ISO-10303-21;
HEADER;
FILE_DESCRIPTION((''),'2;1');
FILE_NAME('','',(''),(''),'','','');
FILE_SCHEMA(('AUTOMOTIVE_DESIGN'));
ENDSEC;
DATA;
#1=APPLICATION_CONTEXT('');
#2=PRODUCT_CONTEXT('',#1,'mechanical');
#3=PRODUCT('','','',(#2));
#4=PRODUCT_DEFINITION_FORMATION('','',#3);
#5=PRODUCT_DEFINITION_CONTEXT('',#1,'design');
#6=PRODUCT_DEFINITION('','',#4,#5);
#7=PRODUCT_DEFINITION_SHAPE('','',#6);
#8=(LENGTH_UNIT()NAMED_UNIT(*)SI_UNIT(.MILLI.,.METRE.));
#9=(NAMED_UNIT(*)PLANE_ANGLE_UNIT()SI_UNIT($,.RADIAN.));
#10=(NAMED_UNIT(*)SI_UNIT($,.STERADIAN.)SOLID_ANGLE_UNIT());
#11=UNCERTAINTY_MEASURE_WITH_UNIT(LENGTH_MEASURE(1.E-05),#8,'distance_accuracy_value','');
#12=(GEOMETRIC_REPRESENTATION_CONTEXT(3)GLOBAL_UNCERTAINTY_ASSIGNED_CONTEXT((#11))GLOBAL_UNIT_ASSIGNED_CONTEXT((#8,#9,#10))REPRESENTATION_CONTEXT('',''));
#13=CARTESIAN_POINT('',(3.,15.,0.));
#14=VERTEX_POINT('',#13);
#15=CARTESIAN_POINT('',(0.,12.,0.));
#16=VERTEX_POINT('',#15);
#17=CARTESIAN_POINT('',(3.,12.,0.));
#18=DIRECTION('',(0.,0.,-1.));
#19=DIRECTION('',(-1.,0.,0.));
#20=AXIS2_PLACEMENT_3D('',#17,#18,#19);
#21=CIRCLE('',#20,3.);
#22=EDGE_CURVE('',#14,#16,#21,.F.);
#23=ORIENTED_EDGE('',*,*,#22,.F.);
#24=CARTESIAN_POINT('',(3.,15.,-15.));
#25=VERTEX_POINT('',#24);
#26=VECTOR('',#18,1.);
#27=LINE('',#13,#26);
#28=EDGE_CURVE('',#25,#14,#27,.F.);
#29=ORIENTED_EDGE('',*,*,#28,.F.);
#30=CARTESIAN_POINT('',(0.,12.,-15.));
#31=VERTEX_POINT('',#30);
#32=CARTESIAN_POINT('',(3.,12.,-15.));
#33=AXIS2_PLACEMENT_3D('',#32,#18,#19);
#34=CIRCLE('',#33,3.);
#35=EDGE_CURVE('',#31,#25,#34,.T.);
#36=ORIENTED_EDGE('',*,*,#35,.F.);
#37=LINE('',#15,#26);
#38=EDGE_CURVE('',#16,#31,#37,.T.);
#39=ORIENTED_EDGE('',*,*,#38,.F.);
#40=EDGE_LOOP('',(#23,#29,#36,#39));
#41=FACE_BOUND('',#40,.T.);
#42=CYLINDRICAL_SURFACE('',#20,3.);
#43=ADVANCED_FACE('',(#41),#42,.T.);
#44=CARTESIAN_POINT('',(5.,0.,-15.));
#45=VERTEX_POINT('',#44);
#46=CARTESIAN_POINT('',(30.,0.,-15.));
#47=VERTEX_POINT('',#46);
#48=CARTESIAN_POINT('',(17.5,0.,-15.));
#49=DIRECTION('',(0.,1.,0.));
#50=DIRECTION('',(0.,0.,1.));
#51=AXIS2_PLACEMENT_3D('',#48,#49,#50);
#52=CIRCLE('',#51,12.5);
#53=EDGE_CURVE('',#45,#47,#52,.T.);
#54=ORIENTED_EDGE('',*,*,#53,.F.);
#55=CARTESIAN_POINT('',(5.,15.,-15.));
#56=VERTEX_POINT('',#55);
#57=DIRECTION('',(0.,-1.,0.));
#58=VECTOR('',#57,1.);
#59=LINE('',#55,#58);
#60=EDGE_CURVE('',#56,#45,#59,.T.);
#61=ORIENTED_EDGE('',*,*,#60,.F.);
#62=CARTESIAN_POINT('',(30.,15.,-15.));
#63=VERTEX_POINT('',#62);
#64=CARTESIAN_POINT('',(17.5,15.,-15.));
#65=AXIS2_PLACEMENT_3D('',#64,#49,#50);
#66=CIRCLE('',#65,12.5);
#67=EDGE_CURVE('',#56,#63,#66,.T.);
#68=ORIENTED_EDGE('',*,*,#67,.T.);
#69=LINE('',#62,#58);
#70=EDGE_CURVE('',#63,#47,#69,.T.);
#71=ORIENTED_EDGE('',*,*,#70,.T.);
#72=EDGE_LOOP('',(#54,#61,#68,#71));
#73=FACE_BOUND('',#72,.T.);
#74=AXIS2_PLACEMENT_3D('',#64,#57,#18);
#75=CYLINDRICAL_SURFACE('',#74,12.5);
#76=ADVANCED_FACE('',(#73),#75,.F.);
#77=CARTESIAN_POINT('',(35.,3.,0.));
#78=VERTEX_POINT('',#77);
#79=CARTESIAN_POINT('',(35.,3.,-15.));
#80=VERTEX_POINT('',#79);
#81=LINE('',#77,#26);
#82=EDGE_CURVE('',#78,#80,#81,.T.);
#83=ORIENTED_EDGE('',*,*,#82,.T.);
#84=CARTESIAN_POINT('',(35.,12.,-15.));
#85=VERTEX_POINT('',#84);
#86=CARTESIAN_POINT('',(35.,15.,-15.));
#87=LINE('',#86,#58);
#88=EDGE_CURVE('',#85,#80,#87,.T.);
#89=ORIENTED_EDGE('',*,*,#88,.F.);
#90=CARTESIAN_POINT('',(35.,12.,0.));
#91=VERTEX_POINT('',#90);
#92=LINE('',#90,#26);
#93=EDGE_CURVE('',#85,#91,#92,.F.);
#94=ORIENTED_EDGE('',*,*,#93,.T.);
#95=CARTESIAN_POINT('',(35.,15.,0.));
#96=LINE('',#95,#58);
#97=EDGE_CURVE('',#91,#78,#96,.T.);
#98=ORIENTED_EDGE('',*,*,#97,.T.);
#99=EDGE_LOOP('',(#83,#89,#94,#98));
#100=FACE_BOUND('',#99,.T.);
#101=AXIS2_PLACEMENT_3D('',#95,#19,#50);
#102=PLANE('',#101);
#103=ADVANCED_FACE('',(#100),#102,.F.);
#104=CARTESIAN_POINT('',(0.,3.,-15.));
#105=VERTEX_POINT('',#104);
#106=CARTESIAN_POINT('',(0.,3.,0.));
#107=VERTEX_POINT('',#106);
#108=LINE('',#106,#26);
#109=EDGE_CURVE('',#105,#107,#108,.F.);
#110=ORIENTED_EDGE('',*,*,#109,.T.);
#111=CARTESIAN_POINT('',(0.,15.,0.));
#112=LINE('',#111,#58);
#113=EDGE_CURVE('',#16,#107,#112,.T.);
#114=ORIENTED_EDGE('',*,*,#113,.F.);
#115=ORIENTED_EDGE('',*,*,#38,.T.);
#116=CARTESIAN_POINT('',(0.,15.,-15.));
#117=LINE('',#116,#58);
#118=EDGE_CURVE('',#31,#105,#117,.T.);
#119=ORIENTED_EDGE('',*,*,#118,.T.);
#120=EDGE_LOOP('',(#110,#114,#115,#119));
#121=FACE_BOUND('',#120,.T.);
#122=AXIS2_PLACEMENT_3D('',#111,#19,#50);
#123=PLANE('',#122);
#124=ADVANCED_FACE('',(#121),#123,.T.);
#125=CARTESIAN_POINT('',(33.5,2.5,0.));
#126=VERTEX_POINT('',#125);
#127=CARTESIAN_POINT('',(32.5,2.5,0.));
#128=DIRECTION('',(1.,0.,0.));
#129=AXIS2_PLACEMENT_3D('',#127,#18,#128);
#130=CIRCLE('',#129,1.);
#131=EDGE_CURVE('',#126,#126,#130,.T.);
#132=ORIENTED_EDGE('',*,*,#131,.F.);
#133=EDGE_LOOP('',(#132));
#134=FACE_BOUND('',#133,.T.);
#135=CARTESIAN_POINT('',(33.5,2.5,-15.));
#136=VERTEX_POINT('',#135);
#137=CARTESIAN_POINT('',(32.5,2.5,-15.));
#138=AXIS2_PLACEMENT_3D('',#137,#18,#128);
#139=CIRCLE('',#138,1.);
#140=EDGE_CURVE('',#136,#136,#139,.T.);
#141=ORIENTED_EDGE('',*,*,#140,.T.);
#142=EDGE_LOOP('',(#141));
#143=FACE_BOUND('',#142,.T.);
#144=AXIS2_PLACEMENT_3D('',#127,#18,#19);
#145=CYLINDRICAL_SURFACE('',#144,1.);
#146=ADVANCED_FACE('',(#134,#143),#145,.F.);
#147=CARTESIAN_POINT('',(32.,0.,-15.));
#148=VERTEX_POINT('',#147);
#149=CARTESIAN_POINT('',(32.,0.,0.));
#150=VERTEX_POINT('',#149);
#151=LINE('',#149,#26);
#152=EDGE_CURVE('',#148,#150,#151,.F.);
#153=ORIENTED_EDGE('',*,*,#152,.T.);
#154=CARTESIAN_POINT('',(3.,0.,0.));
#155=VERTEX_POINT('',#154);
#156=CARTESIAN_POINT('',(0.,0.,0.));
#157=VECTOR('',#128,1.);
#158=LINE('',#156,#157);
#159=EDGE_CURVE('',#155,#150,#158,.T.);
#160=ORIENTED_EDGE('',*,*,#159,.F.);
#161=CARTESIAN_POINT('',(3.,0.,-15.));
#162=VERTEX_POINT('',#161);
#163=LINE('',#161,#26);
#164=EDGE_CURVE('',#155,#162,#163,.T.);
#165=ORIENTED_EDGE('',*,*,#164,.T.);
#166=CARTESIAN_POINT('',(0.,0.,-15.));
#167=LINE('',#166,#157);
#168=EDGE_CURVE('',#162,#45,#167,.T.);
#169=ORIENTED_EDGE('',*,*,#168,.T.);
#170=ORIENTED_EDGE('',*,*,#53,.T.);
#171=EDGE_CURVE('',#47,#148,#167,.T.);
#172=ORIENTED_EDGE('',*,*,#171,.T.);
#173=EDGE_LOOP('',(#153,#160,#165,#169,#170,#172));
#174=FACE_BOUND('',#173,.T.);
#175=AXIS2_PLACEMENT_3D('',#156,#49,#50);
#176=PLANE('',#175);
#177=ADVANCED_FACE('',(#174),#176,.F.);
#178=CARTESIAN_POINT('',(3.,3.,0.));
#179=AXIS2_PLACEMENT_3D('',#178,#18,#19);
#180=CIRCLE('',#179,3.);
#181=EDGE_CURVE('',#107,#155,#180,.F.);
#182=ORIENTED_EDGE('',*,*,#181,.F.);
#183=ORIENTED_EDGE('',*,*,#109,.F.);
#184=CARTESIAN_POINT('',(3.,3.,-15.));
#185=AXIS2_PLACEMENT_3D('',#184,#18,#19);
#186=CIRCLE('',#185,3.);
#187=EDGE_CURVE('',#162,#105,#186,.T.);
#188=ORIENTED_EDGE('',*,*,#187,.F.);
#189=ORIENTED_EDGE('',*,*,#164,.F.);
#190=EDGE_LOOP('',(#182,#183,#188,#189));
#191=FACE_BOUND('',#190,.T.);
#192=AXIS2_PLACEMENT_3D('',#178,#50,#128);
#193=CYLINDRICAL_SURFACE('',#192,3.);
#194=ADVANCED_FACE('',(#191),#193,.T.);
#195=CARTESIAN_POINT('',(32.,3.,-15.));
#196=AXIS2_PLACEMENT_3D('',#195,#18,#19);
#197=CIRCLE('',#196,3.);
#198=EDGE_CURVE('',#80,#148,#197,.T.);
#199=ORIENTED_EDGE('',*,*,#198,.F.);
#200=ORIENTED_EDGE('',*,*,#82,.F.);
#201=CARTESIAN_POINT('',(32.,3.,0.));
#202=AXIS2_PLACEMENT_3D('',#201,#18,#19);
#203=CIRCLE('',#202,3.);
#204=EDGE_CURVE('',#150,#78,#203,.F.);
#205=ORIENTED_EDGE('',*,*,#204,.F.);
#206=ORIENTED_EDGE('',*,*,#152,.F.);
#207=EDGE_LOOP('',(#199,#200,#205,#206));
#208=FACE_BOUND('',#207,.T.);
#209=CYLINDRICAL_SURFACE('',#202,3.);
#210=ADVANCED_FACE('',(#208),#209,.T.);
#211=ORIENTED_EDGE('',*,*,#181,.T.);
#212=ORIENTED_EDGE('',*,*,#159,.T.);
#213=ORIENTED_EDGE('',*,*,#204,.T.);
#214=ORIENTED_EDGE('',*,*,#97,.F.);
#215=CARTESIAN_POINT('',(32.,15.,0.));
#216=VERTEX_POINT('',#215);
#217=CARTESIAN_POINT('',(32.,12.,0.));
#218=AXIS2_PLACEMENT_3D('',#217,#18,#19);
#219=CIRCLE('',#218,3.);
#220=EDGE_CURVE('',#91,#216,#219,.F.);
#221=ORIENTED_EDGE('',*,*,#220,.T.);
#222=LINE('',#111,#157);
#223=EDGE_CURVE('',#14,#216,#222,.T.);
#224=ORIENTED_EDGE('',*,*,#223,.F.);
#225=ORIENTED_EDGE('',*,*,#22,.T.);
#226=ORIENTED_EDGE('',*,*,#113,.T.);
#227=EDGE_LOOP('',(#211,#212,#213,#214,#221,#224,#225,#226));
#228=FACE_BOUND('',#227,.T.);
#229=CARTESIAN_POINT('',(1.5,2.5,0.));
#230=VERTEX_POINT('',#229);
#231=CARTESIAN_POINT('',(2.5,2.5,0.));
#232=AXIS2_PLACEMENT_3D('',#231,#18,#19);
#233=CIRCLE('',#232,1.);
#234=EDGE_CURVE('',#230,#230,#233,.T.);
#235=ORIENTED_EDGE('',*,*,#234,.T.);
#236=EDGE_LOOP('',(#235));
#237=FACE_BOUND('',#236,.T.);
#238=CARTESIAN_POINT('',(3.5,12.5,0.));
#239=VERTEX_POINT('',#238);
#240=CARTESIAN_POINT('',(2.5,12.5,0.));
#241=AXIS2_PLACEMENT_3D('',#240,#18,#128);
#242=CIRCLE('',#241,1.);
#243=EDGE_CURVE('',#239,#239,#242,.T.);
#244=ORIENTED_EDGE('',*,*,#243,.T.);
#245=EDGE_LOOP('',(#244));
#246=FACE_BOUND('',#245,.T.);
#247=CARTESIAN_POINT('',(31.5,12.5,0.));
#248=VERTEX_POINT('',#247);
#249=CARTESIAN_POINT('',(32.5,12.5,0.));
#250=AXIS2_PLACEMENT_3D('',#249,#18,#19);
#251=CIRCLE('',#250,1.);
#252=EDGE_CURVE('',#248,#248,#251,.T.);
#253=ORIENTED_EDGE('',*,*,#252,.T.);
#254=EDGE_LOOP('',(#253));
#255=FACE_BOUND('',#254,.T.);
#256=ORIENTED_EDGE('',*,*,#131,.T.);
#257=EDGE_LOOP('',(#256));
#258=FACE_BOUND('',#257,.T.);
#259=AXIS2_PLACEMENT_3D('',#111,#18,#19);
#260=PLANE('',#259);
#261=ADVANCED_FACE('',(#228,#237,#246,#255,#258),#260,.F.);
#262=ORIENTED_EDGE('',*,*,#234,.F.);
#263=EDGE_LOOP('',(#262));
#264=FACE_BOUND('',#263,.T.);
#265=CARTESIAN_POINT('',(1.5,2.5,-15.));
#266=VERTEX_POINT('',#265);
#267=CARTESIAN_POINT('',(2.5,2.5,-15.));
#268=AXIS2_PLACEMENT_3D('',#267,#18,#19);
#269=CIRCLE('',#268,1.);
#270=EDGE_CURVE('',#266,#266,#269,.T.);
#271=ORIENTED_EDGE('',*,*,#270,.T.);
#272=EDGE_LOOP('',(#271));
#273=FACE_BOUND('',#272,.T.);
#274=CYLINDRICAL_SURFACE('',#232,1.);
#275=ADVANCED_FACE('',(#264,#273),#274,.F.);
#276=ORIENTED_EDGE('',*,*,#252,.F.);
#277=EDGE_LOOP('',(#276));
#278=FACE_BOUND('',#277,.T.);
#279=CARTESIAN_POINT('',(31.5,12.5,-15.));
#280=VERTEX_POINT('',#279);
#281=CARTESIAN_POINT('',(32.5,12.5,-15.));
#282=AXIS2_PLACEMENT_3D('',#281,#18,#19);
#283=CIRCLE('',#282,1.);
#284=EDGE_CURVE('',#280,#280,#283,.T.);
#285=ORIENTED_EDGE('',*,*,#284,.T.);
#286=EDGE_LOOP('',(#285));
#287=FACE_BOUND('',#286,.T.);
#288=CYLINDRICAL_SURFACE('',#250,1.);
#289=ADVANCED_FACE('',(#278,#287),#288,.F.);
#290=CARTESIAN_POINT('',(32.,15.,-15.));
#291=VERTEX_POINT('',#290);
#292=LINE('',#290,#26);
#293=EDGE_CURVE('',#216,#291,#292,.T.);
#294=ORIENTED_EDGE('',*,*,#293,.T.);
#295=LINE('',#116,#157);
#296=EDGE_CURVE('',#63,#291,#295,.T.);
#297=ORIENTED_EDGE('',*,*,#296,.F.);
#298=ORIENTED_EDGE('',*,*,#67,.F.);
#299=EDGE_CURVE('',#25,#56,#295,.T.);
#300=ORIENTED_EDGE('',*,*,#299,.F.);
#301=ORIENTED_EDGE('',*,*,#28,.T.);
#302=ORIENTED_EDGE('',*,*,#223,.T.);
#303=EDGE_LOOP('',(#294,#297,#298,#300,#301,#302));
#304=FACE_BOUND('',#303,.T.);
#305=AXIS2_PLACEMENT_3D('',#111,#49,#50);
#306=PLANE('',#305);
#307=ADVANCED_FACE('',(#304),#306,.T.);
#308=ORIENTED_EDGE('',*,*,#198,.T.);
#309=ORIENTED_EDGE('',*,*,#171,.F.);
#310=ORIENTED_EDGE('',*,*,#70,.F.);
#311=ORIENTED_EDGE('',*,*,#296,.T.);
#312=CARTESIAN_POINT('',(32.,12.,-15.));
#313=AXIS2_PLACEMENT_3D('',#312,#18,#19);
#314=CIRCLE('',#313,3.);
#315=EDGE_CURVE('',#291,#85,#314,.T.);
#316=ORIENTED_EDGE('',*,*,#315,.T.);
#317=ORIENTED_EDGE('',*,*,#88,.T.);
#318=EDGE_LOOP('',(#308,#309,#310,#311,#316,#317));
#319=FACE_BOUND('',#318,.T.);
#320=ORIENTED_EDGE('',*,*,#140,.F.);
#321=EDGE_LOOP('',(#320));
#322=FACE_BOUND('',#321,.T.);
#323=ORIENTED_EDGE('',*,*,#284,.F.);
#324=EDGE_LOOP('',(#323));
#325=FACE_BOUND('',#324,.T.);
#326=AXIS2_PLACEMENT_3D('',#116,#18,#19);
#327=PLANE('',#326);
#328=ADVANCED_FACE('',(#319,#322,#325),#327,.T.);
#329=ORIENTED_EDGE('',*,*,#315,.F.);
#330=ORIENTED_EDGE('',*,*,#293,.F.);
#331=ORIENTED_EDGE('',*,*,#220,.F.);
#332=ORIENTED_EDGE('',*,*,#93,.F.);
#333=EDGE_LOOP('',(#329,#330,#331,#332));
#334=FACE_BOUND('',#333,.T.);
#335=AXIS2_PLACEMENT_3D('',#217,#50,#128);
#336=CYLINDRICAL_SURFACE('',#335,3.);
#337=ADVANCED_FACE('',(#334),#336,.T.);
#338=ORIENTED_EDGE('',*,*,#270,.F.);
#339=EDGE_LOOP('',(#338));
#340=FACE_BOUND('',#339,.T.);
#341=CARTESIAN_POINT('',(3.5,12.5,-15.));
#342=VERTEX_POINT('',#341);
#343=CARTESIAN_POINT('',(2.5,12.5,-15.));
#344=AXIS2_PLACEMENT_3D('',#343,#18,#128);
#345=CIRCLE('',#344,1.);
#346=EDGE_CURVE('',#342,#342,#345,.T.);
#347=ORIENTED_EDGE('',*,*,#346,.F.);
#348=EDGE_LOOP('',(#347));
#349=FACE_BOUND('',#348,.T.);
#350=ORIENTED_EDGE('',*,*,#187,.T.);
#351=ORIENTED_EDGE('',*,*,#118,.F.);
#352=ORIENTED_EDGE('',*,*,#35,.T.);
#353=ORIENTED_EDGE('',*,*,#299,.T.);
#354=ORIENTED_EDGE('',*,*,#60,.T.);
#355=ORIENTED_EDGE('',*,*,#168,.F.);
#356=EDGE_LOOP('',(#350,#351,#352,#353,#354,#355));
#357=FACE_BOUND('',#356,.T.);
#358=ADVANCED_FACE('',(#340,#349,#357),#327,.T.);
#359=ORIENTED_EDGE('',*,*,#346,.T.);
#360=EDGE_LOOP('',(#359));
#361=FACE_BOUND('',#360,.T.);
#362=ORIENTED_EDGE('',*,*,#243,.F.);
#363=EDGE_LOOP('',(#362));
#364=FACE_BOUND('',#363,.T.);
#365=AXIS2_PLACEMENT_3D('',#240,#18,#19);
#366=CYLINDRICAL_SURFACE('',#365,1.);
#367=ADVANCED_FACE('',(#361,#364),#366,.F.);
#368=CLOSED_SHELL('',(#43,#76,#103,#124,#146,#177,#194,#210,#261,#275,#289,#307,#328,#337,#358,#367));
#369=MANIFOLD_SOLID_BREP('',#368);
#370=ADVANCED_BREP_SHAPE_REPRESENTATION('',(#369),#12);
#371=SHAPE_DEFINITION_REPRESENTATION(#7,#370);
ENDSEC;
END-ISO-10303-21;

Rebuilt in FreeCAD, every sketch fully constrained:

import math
import FreeCAD as App
import Part
import Sketcher
from FreeCAD import Vector
Q = App.Units.Quantity


def edges_at(feature, points):
    """Names of the edges that pass closest to the given points."""
    edges = feature.Shape.Edges
    near = lambda p: min(range(len(edges)), key=lambda i: edges[i].distToShape(Part.Vertex(*p))[0])
    return sorted({f"Edge{near(p) + 1}" for p in points})

doc = App.newDocument("Part")
body = doc.addObject("PartDesign::Body", "Body")

sketch1 = body.newObject("Sketcher::SketchObject", "Sketch")
sketch1.AttachmentSupport = (doc.getObject("XZ_Plane"), [""])
sketch1.MapMode = "FlatFace"
sketch1.addGeometry([
    Part.LineSegment(Vector(0, -15, 0), Vector(0, 0, 0)),
    Part.LineSegment(Vector(0, 0, 0), Vector(35, 0, 0)),
    Part.LineSegment(Vector(35, 0, 0), Vector(35, -15, 0)),
    Part.LineSegment(Vector(35, -15, 0), Vector(30, -15, 0)),
    Part.ArcOfCircle(Part.Circle(Vector(17.5, -15, 0), Vector(0, 0, 1), 12.5), math.radians(0), math.radians(180)),
    Part.LineSegment(Vector(5, -15, 0), Vector(0, -15, 0)),
], False)
sketch1.addConstraint([
    Sketcher.Constraint("Coincident", 0, 2, 1, 1),
    Sketcher.Constraint("Coincident", 1, 2, 2, 1),
    Sketcher.Constraint("Coincident", 2, 2, 3, 1),
    Sketcher.Constraint("Coincident", 3, 2, 4, 1),
    Sketcher.Constraint("Coincident", 4, 2, 5, 1),
    Sketcher.Constraint("Coincident", 5, 2, 0, 1),
    Sketcher.Constraint("Vertical", 0),
    Sketcher.Constraint("Horizontal", 1),
    Sketcher.Constraint("Vertical", 2),
    Sketcher.Constraint("Horizontal", 3),
    Sketcher.Constraint("Horizontal", 5),
    Sketcher.Constraint("Coincident", 0, 2, -1, 1),
    Sketcher.Constraint("Horizontal", 4, 3, 2, 2),
    Sketcher.Constraint("Horizontal", 3, 2, 4, 2),
    Sketcher.Constraint("Equal", 3, 5),
    Sketcher.Constraint("Radius", 4, Q("12.5 mm")),
    Sketcher.Constraint("DistanceX", 1, 1, 1, 2, Q("35 mm")),
    Sketcher.Constraint("DistanceY", 0, 1, 0, 2, Q("15 mm")),
])
pad1 = body.newObject("PartDesign::Pad", "Pad")
pad1.Profile = sketch1
pad1.Length = 15
pad1.Reversed = True

sketch2 = body.newObject("Sketcher::SketchObject", "Sketch001")
sketch2.AttachmentSupport = (doc.getObject("XY_Plane"), [""])
sketch2.MapMode = "FlatFace"
sketch2.AttachmentOffset = App.Placement(Vector(0, 0, -15), App.Rotation())
sketch2.addGeometry([
    Part.Circle(Vector(32.5, 12.5, 0), Vector(0, 0, 1), 1),
    Part.Circle(Vector(32.5, 2.5, 0), Vector(0, 0, 1), 1),
    Part.Circle(Vector(2.5, 2.5, 0), Vector(0, 0, 1), 1),
    Part.Circle(Vector(2.5, 12.5, 0), Vector(0, 0, 1), 1),
], False)
sketch2.addConstraint([
    Sketcher.Constraint("Equal", 0, 1),
    Sketcher.Constraint("Equal", 1, 2),
    Sketcher.Constraint("Equal", 2, 3),
    Sketcher.Constraint("Horizontal", 1, 3, 2, 3),
    Sketcher.Constraint("Horizontal", 0, 3, 3, 3),
    Sketcher.Constraint("Vertical", 0, 3, 1, 3),
    Sketcher.Constraint("Vertical", 2, 3, 3, 3),
    Sketcher.Constraint("Diameter", 0, Q("2 mm")),
    Sketcher.Constraint("DistanceY", 1, 3, 0, 3, Q("10 mm")),
    Sketcher.Constraint("DistanceX", 2, 3, 1, 3, Q("30 mm")),
    Sketcher.Constraint("DistanceX", -1, 1, 0, 3, Q("32.5 mm")),
    Sketcher.Constraint("DistanceY", -1, 1, 0, 3, Q("12.5 mm")),
])
pocket1 = body.newObject("PartDesign::Pocket", "Pocket")
pocket1.Profile = sketch2
pocket1.Type = "ThroughAll"
pocket1.Reversed = True
doc.recompute()

fillet = body.newObject("PartDesign::Fillet", "Fillet")
fillet.Base = (pocket1, edges_at(pocket1, [
    (0, 15, -7.5),
    (35, 15, -7.5),
    (35, 0, -7.5),
    (0, 0, -7.5),
]))
fillet.Radius = 3

doc.recompute()
